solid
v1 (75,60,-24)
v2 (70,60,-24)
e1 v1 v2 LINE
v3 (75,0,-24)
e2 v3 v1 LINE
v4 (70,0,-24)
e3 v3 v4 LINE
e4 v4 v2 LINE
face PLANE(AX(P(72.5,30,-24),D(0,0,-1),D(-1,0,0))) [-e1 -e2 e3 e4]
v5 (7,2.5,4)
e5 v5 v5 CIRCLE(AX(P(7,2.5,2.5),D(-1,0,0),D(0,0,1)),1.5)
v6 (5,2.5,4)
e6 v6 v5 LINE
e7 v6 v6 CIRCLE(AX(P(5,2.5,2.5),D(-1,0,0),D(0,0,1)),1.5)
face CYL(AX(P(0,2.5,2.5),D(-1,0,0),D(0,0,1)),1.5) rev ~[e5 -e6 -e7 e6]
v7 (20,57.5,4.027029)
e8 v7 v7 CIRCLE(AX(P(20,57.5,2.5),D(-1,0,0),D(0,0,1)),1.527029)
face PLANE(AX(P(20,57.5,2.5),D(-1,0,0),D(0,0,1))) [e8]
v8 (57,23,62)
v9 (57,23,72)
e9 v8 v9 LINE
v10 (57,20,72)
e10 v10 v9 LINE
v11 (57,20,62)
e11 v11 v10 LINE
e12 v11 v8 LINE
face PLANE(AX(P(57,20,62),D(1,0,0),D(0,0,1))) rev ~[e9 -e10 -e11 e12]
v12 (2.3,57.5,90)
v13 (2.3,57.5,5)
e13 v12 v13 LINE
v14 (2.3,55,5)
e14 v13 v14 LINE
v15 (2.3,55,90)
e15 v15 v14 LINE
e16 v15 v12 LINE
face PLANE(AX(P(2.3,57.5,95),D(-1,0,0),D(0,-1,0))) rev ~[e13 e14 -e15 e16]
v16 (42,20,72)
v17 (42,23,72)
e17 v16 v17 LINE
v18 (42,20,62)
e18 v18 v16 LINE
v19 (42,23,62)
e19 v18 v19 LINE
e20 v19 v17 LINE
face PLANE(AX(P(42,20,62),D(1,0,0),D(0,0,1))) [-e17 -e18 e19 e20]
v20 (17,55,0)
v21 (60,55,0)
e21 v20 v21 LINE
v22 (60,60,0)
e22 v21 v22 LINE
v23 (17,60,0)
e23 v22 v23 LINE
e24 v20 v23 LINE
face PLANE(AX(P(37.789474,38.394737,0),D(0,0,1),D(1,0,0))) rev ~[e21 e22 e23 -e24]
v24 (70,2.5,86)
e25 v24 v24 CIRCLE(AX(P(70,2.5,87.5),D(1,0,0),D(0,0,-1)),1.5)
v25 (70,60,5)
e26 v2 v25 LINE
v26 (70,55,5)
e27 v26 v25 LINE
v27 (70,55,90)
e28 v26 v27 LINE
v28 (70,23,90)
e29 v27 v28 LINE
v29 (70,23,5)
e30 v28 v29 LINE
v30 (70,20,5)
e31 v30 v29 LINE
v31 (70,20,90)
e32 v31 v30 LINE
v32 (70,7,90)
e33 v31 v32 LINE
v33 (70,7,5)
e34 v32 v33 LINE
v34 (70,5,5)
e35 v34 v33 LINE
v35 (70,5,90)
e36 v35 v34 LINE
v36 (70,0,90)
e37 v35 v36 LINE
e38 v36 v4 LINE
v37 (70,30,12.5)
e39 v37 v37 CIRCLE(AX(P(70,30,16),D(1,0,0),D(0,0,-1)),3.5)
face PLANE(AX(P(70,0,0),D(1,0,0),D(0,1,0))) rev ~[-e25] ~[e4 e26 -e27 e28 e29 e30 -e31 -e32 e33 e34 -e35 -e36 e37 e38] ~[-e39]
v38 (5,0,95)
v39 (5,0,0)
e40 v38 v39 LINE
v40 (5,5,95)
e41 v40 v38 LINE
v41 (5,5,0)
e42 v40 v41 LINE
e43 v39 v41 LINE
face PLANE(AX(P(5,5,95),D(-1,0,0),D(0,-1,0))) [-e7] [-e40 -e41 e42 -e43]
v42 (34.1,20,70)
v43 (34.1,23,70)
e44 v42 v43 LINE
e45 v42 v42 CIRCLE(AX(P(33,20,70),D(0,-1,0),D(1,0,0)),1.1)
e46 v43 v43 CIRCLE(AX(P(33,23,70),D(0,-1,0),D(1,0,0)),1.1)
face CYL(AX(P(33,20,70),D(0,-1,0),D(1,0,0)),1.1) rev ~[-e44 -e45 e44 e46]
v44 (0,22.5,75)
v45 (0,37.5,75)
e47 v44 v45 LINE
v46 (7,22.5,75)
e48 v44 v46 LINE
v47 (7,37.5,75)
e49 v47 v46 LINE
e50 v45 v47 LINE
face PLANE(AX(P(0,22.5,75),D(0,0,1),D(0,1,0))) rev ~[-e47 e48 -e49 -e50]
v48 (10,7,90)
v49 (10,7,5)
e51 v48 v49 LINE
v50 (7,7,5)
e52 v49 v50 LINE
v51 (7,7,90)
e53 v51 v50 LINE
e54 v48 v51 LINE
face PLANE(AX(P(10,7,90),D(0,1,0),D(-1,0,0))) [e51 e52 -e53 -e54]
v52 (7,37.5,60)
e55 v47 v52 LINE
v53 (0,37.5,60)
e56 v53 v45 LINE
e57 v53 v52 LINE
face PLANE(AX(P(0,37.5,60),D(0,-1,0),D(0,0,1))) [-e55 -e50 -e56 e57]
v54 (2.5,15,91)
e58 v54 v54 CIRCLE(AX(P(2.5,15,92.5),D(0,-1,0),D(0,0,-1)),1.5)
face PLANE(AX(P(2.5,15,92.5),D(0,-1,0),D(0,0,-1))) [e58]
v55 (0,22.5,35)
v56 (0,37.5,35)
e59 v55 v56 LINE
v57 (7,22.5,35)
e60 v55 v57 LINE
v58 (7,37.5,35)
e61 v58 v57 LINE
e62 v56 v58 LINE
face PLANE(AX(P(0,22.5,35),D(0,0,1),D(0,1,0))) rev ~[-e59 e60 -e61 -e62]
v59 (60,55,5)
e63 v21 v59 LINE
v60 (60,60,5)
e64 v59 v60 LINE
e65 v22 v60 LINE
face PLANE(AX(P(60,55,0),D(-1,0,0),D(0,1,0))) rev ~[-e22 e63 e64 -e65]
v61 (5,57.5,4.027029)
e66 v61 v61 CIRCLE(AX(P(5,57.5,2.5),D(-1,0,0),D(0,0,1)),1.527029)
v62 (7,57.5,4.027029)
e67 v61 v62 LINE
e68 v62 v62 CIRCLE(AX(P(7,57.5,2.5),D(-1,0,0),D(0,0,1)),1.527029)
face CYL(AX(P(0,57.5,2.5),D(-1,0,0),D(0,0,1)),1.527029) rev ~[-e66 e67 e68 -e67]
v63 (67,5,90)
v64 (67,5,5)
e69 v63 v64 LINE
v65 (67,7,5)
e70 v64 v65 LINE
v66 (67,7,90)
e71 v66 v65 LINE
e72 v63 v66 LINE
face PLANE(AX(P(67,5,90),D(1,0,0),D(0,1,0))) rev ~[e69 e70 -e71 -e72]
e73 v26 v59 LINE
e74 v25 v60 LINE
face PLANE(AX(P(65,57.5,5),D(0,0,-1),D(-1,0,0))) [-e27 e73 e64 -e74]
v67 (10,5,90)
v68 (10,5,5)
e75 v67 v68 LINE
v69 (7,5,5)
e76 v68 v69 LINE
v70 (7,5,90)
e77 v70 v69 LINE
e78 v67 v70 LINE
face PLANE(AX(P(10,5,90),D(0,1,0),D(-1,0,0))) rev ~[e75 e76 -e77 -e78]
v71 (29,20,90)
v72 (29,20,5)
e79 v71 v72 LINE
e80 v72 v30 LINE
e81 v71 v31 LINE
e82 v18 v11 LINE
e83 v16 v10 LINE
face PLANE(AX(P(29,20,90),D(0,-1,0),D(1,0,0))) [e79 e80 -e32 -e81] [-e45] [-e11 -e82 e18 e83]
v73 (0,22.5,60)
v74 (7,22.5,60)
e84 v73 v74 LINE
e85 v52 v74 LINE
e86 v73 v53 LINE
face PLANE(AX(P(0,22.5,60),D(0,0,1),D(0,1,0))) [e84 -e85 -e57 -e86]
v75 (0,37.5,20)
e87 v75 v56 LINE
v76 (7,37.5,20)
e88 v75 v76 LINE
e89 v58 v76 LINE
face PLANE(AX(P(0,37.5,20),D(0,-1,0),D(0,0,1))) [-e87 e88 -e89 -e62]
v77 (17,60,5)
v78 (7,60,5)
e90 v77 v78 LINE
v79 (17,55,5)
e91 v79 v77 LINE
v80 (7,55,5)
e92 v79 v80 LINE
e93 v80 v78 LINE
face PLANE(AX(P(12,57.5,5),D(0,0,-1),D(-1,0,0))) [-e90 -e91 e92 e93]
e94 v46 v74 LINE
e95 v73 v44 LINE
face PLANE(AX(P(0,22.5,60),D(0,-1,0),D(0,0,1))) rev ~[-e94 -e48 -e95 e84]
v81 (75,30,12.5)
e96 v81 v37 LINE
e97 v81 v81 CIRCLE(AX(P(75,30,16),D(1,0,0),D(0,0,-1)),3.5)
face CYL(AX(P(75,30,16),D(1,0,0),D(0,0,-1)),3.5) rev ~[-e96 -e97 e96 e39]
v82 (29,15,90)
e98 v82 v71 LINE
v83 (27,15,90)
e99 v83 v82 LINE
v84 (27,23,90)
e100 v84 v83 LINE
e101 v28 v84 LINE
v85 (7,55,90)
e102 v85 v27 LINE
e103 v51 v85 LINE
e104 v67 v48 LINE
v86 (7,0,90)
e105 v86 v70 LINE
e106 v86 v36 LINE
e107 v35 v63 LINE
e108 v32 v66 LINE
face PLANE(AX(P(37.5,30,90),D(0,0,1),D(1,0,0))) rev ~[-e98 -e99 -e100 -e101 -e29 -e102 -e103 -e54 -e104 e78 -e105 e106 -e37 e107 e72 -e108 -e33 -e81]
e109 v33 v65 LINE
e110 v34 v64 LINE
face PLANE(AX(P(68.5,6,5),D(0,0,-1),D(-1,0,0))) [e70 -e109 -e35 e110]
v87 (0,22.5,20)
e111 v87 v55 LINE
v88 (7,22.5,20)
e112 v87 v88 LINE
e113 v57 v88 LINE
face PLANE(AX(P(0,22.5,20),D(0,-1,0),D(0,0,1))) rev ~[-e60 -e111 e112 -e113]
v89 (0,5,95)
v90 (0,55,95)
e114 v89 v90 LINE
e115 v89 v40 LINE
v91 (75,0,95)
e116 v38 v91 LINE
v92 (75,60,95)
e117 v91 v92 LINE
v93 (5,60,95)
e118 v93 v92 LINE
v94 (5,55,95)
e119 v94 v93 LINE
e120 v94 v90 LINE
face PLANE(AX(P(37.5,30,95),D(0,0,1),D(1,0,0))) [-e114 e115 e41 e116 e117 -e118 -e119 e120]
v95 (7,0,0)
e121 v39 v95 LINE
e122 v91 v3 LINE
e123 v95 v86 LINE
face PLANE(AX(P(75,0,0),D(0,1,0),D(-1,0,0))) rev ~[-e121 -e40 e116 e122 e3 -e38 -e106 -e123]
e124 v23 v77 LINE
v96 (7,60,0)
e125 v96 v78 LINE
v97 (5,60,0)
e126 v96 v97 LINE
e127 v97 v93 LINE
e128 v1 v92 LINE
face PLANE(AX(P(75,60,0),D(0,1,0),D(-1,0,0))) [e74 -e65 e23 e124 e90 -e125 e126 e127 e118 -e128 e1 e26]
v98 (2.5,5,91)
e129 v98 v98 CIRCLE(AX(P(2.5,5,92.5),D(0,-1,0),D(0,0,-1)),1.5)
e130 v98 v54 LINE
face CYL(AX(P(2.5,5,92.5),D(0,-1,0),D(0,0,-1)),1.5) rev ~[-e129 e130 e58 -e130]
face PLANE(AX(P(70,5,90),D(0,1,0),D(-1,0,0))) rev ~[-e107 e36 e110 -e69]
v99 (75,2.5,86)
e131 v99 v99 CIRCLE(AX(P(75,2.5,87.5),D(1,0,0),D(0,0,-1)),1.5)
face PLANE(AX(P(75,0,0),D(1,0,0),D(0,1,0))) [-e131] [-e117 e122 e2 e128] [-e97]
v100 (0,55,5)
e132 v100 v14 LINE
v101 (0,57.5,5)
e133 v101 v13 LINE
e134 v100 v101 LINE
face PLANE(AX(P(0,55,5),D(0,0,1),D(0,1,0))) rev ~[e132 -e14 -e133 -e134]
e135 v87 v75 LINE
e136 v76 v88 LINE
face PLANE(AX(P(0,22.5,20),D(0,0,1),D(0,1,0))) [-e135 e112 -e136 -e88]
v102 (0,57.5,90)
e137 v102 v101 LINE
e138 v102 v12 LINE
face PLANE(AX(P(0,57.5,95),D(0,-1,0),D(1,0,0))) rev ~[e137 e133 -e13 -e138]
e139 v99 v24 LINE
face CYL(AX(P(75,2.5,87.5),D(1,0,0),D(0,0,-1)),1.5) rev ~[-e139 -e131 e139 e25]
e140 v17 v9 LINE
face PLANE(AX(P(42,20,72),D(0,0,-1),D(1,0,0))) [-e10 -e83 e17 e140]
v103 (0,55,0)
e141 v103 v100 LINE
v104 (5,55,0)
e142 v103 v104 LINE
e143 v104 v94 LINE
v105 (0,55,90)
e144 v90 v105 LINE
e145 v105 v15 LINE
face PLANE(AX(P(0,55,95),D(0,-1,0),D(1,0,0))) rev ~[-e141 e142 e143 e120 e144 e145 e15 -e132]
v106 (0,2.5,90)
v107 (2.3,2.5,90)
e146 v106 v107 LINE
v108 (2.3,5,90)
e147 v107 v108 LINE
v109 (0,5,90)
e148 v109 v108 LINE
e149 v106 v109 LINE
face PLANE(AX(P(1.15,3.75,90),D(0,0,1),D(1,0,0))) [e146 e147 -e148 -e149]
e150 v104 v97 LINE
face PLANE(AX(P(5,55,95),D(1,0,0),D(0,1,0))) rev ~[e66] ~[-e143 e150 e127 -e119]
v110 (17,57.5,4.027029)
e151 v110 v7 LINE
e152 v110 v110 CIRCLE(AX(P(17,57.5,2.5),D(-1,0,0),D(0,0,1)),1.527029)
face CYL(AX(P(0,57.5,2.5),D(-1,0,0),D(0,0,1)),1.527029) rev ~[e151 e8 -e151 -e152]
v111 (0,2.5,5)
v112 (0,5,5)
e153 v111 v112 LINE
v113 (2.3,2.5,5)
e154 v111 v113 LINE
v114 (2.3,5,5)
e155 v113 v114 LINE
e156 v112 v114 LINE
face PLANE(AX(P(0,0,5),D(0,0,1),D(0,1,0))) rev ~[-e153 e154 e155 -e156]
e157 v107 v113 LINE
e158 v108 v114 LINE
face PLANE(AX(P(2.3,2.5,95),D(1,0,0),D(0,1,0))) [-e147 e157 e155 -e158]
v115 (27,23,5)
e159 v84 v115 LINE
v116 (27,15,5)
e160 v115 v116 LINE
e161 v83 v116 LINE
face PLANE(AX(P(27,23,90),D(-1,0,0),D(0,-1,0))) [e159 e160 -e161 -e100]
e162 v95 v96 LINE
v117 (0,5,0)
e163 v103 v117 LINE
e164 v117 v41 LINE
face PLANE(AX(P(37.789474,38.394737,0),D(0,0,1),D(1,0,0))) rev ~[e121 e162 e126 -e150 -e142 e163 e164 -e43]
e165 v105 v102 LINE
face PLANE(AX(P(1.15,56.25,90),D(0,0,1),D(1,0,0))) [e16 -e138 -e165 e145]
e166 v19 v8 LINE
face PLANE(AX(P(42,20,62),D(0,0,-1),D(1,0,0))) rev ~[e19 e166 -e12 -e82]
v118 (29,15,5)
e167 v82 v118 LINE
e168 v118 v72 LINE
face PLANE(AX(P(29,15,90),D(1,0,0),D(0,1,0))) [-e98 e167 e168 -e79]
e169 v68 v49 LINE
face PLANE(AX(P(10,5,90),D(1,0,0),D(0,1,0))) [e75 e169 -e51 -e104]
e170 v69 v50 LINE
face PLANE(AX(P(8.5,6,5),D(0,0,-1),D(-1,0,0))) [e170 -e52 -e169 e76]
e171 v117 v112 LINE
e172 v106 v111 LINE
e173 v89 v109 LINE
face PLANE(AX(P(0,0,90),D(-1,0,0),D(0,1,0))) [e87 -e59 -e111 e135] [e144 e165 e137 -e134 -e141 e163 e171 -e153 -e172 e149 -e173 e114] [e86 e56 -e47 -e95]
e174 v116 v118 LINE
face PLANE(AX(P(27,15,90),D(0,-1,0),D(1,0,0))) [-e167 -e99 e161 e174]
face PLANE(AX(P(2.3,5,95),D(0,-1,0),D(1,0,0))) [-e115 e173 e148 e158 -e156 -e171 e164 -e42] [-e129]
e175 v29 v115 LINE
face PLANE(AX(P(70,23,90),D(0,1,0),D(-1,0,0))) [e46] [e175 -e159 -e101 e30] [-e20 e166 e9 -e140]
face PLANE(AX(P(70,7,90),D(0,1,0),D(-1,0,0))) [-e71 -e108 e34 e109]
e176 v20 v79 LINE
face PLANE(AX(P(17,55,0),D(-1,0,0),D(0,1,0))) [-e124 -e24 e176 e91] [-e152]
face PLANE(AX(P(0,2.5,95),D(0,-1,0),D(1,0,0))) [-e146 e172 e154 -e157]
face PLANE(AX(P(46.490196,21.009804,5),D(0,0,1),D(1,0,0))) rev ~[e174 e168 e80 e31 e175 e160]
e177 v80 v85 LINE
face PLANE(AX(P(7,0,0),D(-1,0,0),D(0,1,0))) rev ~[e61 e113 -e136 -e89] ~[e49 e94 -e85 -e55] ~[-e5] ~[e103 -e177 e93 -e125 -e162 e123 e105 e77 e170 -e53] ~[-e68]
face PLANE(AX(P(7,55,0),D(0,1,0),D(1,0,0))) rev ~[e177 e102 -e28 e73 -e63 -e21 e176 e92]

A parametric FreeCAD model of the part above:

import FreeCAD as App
import Part
import Sketcher
Q = App.Units.Quantity

doc = App.newDocument("Part")
body = doc.addObject("PartDesign::Body", "Body")

sketch1 = body.newObject("Sketcher::SketchObject", "Sketch")
sketch1.AttachmentSupport = (doc.getObject("XY_Plane"), [""])
sketch1.MapMode = "FlatFace"
sketch1.addGeometry([
    Part.LineSegment(App.Vector(0, 60, 0), App.Vector(0, 0, 0)),
    Part.LineSegment(App.Vector(0, 0, 0), App.Vector(7, 0, 0)),
    Part.LineSegment(App.Vector(7, 0, 0), App.Vector(7, 55, 0)),
    Part.LineSegment(App.Vector(7, 55, 0), App.Vector(70, 55, 0)),
    Part.LineSegment(App.Vector(70, 55, 0), App.Vector(70, 0, 0)),
    Part.LineSegment(App.Vector(70, 0, 0), App.Vector(75, 0, 0)),
    Part.LineSegment(App.Vector(75, 0, 0), App.Vector(75, 60, 0)),
    Part.LineSegment(App.Vector(75, 60, 0), App.Vector(0, 60, 0)),
], False)
sketch1.addConstraint([
    Sketcher.Constraint("Coincident", 0, 2, 1, 1),
    Sketcher.Constraint("Coincident", 1, 2, 2, 1),
    Sketcher.Constraint("Coincident", 2, 2, 3, 1),
    Sketcher.Constraint("Coincident", 3, 2, 4, 1),
    Sketcher.Constraint("Coincident", 4, 2, 5, 1),
    Sketcher.Constraint("Coincident", 5, 2, 6, 1),
    Sketcher.Constraint("Coincident", 6, 2, 7, 1),
    Sketcher.Constraint("Coincident", 7, 2, 0, 1),
    Sketcher.Constraint("Vertical", 0),
    Sketcher.Constraint("Horizontal", 1),
    Sketcher.Constraint("Vertical", 2),
    Sketcher.Constraint("Horizontal", 3),
    Sketcher.Constraint("Vertical", 4),
    Sketcher.Constraint("Horizontal", 5),
    Sketcher.Constraint("Vertical", 6),
    Sketcher.Constraint("Horizontal", 7),
    Sketcher.Constraint("Coincident", 0, 2, -1, 1),
    Sketcher.Constraint("PointOnObject", 4, 2, -1),
    Sketcher.Constraint("DistanceX", 1, 1, 1, 2, Q("7 mm")),
    Sketcher.Constraint("DistanceX", 3, 1, 3, 2, Q("63 mm")),
    Sketcher.Constraint("DistanceX", 5, 1, 5, 2, Q("5 mm")),
    Sketcher.Constraint("DistanceY", 0, 2, 0, 1, Q("60 mm")),
    Sketcher.Constraint("DistanceY", 2, 1, 2, 2, Q("55 mm")),
])
pad1 = body.newObject("PartDesign::Pad", "Pad")
pad1.Profile = sketch1
pad1.Length = 90

sketch2 = body.newObject("Sketcher::SketchObject", "Sketch001")
sketch2.AttachmentSupport = (doc.getObject("XY_Plane"), [""])
sketch2.MapMode = "FlatFace"
sketch2.AttachmentOffset = App.Placement(App.Vector(0, 0, 90), App.Rotation())
sketch2.addGeometry([
    Part.LineSegment(App.Vector(0, 60, 0), App.Vector(0, 0, 0)),
    Part.LineSegment(App.Vector(0, 0, 0), App.Vector(75, 0, 0)),
    Part.LineSegment(App.Vector(75, 0, 0), App.Vector(75, 60, 0)),
    Part.LineSegment(App.Vector(75, 60, 0), App.Vector(0, 60, 0)),
], False)
sketch2.addConstraint([
    Sketcher.Constraint("Coincident", 0, 2, 1, 1),
    Sketcher.Constraint("Coincident", 1, 2, 2, 1),
    Sketcher.Constraint("Coincident", 2, 2, 3, 1),
    Sketcher.Constraint("Coincident", 3, 2, 0, 1),
    Sketcher.Constraint("Vertical", 0),
    Sketcher.Constraint("Horizontal", 1),
    Sketcher.Constraint("Vertical", 2),
    Sketcher.Constraint("Horizontal", 3),
    Sketcher.Constraint("Coincident", 0, 2, -1, 1),
    Sketcher.Constraint("DistanceX", 1, 1, 1, 2, Q("75 mm")),
    Sketcher.Constraint("DistanceY", 0, 2, 0, 1, Q("60 mm")),
])
pad2 = body.newObject("PartDesign::Pad", "Pad001")
pad2.Profile = sketch2
pad2.Length = 5

sketch3 = body.newObject("Sketcher::SketchObject", "Sketch002")
sketch3.AttachmentSupport = (doc.getObject("XY_Plane"), [""])
sketch3.MapMode = "FlatFace"
sketch3.addGeometry([
    Part.LineSegment(App.Vector(75, 60, 0), App.Vector(75, 0, 0)),
    Part.LineSegment(App.Vector(75, 0, 0), App.Vector(70, 0, 0)),
    Part.LineSegment(App.Vector(70, 0, 0), App.Vector(70, 60, 0)),
    Part.LineSegment(App.Vector(70, 60, 0), App.Vector(75, 60, 0)),
], False)
sketch3.addConstraint([
    Sketcher.Constraint("Coincident", 0, 2, 1, 1),
    Sketcher.Constraint("Coincident", 1, 2, 2, 1),
    Sketcher.Constraint("Coincident", 2, 2, 3, 1),
    Sketcher.Constraint("Coincident", 3, 2, 0, 1),
    Sketcher.Constraint("Vertical", 0),
    Sketcher.Constraint("Horizontal", 1),
    Sketcher.Constraint("Vertical", 2),
    Sketcher.Constraint("Horizontal", 3),
    Sketcher.Constraint("PointOnObject", 0, 2, -1),
    Sketcher.Constraint("DistanceX", 1, 2, 1, 1, Q("5 mm")),
    Sketcher.Constraint("DistanceY", 0, 2, 0, 1, Q("60 mm")),
    Sketcher.Constraint("DistanceX", -1, 1, 0, 2, Q("75 mm")),
])
pad3 = body.newObject("PartDesign::Pad", "Pad002")
pad3.Profile = sketch3
pad3.Length = 24
pad3.Reversed = True

sketch4 = body.newObject("Sketcher::SketchObject", "Sketch003")
sketch4.AttachmentSupport = (doc.getObject("YZ_Plane"), [""])
sketch4.MapMode = "FlatFace"
sketch4.AttachmentOffset = App.Placement(App.Vector(0, 0, 75), App.Rotation())
sketch4.addGeometry(Part.Circle(App.Vector(30, 16, 0), App.Vector(0, 0, 1), 3.5), False)
sketch4.addConstraint([
    Sketcher.Constraint("Diameter", 0, Q("7 mm")),
    Sketcher.Constraint("DistanceX", -1, 1, 0, 3, Q("30 mm")),
    Sketcher.Constraint("DistanceY", -1, 1, 0, 3, Q("16 mm")),
])
pocket1 = body.newObject("PartDesign::Pocket", "Pocket")
pocket1.Profile = sketch4
pocket1.Type = "UpToFirst"

sketch5 = body.newObject("Sketcher::SketchObject", "Sketch004")
sketch5.AttachmentSupport = (doc.getObject("YZ_Plane"), [""])
sketch5.MapMode = "FlatFace"
sketch5.AttachmentOffset = App.Placement(App.Vector(0, 0, 75), App.Rotation())
sketch5.addGeometry(Part.Circle(App.Vector(2.5, 87.5, 0), App.Vector(0, 0, 1), 1.5), False)
sketch5.addConstraint([
    Sketcher.Constraint("Diameter", 0, Q("3 mm")),
    Sketcher.Constraint("DistanceX", -1, 1, 0, 3, Q("2.5 mm")),
    Sketcher.Constraint("DistanceY", -1, 1, 0, 3, Q("87.5 mm")),
])
pocket2 = body.newObject("PartDesign::Pocket", "Pocket001")
pocket2.Profile = sketch5
pocket2.Type = "UpToFirst"

sketch6 = body.newObject("Sketcher::SketchObject", "Sketch005")
sketch6.AttachmentSupport = (doc.getObject("XY_Plane"), [""])
sketch6.MapMode = "FlatFace"
sketch6.AttachmentOffset = App.Placement(App.Vector(0, 0, 90), App.Rotation())
sketch6.addGeometry([
    Part.LineSegment(App.Vector(70, 23, 0), App.Vector(70, 20, 0)),
    Part.LineSegment(App.Vector(70, 20, 0), App.Vector(29, 20, 0)),
    Part.LineSegment(App.Vector(29, 20, 0), App.Vector(29, 15, 0)),
    Part.LineSegment(App.Vector(29, 15, 0), App.Vector(27, 15, 0)),
    Part.LineSegment(App.Vector(27, 15, 0), App.Vector(27, 23, 0)),
    Part.LineSegment(App.Vector(27, 23, 0), App.Vector(70, 23, 0)),
    Part.LineSegment(App.Vector(70, 7, 0), App.Vector(70, 5, 0)),
    Part.LineSegment(App.Vector(70, 5, 0), App.Vector(67, 5, 0)),
    Part.LineSegment(App.Vector(67, 5, 0), App.Vector(67, 7, 0)),
    Part.LineSegment(App.Vector(67, 7, 0), App.Vector(70, 7, 0)),
    Part.LineSegment(App.Vector(10, 7, 0), App.Vector(10, 5, 0)),
    Part.LineSegment(App.Vector(10, 5, 0), App.Vector(7, 5, 0)),
    Part.LineSegment(App.Vector(7, 5, 0), App.Vector(7, 7, 0)),
    Part.LineSegment(App.Vector(7, 7, 0), App.Vector(10, 7, 0)),
], False)
sketch6.addConstraint([
    Sketcher.Constraint("Coincident", 0, 2, 1, 1),
    Sketcher.Constraint("Coincident", 1, 2, 2, 1),
    Sketcher.Constraint("Coincident", 2, 2, 3, 1),
    Sketcher.Constraint("Coincident", 3, 2, 4, 1),
    Sketcher.Constraint("Coincident", 4, 2, 5, 1),
    Sketcher.Constraint("Coincident", 5, 2, 0, 1),
    Sketcher.Constraint("Coincident", 6, 2, 7, 1),
    Sketcher.Constraint("Coincident", 7, 2, 8, 1),
    Sketcher.Constraint("Coincident", 8, 2, 9, 1),
    Sketcher.Constraint("Coincident", 9, 2, 6, 1),
    Sketcher.Constraint("Coincident", 10, 2, 11, 1),
    Sketcher.Constraint("Coincident", 11, 2, 12, 1),
    Sketcher.Constraint("Coincident", 12, 2, 13, 1),
    Sketcher.Constraint("Coincident", 13, 2, 10, 1),
    Sketcher.Constraint("Vertical", 0),
    Sketcher.Constraint("Horizontal", 1),
    Sketcher.Constraint("Vertical", 2),
    Sketcher.Constraint("Horizontal", 3),
    Sketcher.Constraint("Vertical", 4),
    Sketcher.Constraint("Horizontal", 5),
    Sketcher.Constraint("Vertical", 6),
    Sketcher.Constraint("Horizontal", 7),
    Sketcher.Constraint("Vertical", 8),
    Sketcher.Constraint("Horizontal", 9),
    Sketcher.Constraint("Vertical", 10),
    Sketcher.Constraint("Horizontal", 11),
    Sketcher.Constraint("Vertical", 12),
    Sketcher.Constraint("Horizontal", 13),
    Sketcher.Constraint("Horizontal", 7, 2, 10, 2),
    Sketcher.Constraint("Horizontal", 9, 2, 12, 2),
    Sketcher.Constraint("Vertical", 5, 2, 6, 2),
    Sketcher.Constraint("Equal", 9, 11),
    Sketcher.Constraint("Equal", 13, 0),
    Sketcher.Constraint("Equal", 3, 6),
    Sketcher.Constraint("DistanceX", 1, 2, 1, 1, Q("41 mm")),
    Sketcher.Constraint("DistanceX", 3, 2, 3, 1, Q("2 mm")),
    Sketcher.Constraint("DistanceX", 7, 2, 7, 1, Q("3 mm")),
    Sketcher.Constraint("DistanceY", 2, 2, 2, 1, Q("5 mm")),
    Sketcher.Constraint("DistanceX", -1, 1, 0, 2, Q("70 mm")),
    Sketcher.Constraint("DistanceY", -1, 1, 0, 2, Q("20 mm")),
    Sketcher.Constraint("DistanceY", -1, 1, 6, 2, Q("5 mm")),
    Sketcher.Constraint("DistanceX", -1, 1, 10, 2, Q("10 mm")),
])
pad4 = body.newObject("PartDesign::Pad", "Pad003")
pad4.Profile = sketch6
pad4.Length = 85
pad4.Reversed = True

sketch7 = body.newObject("Sketcher::SketchObject", "Sketch006")
sketch7.AttachmentSupport = (doc.getObject("YZ_Plane"), [""])
sketch7.MapMode = "FlatFace"
sketch7.addGeometry([
    Part.Circle(App.Vector(2.5, 2.5, 0), App.Vector(0, 0, 1), 1.5),
    Part.Circle(App.Vector(57.5, 2.5, 0), App.Vector(0, 0, 1), 1.5),
], False)
sketch7.addConstraint([
    Sketcher.Constraint("Horizontal", 0, 3, 1, 3),
    Sketcher.Constraint("Diameter", 0, Q("3 mm")),
    Sketcher.Constraint("DistanceX", 0, 3, 1, 3, Q("55 mm")),
    Sketcher.Constraint("DistanceX", -1, 1, 0, 3, Q("2.5 mm")),
    Sketcher.Constraint("DistanceY", -1, 1, 0, 3, Q("2.5 mm")),
    Sketcher.Constraint("Diameter", 1, Q("3.054057 mm")),
])
pocket3 = body.newObject("PartDesign::Pocket", "Pocket002")
pocket3.Profile = sketch7
pocket3.Length = 20
pocket3.Reversed = True

sketch8 = body.newObject("Sketcher::SketchObject", "Sketch007")
sketch8.AttachmentSupport = (doc.getObject("XY_Plane"), [""])
sketch8.MapMode = "FlatFace"
sketch8.addGeometry([
    Part.LineSegment(App.Vector(70, 60, 0), App.Vector(70, 55, 0)),
    Part.LineSegment(App.Vector(70, 55, 0), App.Vector(60, 55, 0)),
    Part.LineSegment(App.Vector(60, 55, 0), App.Vector(60, 60, 0)),
    Part.LineSegment(App.Vector(60, 60, 0), App.Vector(70, 60, 0)),
    Part.LineSegment(App.Vector(17, 60, 0), App.Vector(17, 55, 0)),
    Part.LineSegment(App.Vector(17, 55, 0), App.Vector(7, 55, 0)),
    Part.LineSegment(App.Vector(7, 55, 0), App.Vector(7, 60, 0)),
    Part.LineSegment(App.Vector(7, 60, 0), App.Vector(17, 60, 0)),
], False)
sketch8.addConstraint([
    Sketcher.Constraint("Coincident", 0, 2, 1, 1),
    Sketcher.Constraint("Coincident", 1, 2, 2, 1),
    Sketcher.Constraint("Coincident", 2, 2, 3, 1),
    Sketcher.Constraint("Coincident", 3, 2, 0, 1),
    Sketcher.Constraint("Coincident", 4, 2, 5, 1),
    Sketcher.Constraint("Coincident", 5, 2, 6, 1),
    Sketcher.Constraint("Coincident", 6, 2, 7, 1),
    Sketcher.Constraint("Coincident", 7, 2, 4, 1),
    Sketcher.Constraint("Vertical", 0),
    Sketcher.Constraint("Horizontal", 1),
    Sketcher.Constraint("Vertical", 2),
    Sketcher.Constraint("Horizontal", 3),
    Sketcher.Constraint("Vertical", 4),
    Sketcher.Constraint("Horizontal", 5),
    Sketcher.Constraint("Vertical", 6),
    Sketcher.Constraint("Horizontal", 7),
    Sketcher.Constraint("Horizontal", 1, 2, 4, 2),
    Sketcher.Constraint("Horizontal", 3, 2, 6, 2),
    Sketcher.Constraint("Equal", 3, 5),
    Sketcher.Constraint("DistanceX", 1, 2, 1, 1, Q("10 mm")),
    Sketcher.Constraint("DistanceY", 0, 2, 0, 1, Q("5 mm")),
    Sketcher.Constraint("DistanceX", -1, 1, 0, 2, Q("70 mm")),
    Sketcher.Constraint("DistanceY", -1, 1, 0, 2, Q("55 mm")),
    Sketcher.Constraint("DistanceX", -1, 1, 4, 2, Q("17 mm")),
])
pocket4 = body.newObject("PartDesign::Pocket", "Pocket003")
pocket4.Profile = sketch8
pocket4.Length = 5
pocket4.Reversed = True

sketch9 = body.newObject("Sketcher::SketchObject", "Sketch008")
sketch9.AttachmentSupport = (doc.getObject("XZ_Plane"), [""])
sketch9.MapMode = "FlatFace"
sketch9.AttachmentOffset = App.Placement(App.Vector(0, 0, -20), App.Rotation())
sketch9.addGeometry(Part.Circle(App.Vector(33, 70, 0), App.Vector(0, 0, 1), 1.1), False)
sketch9.addConstraint([
    Sketcher.Constraint("Diameter", 0, Q("2.2 mm")),
    Sketcher.Constraint("DistanceX", -1, 1, 0, 3, Q("33 mm")),
    Sketcher.Constraint("DistanceY", -1, 1, 0, 3, Q("70 mm")),
])
pocket5 = body.newObject("PartDesign::Pocket", "Pocket004")
pocket5.Profile = sketch9
pocket5.Type = "UpToFirst"

sketch10 = body.newObject("Sketcher::SketchObject", "Sketch009")
sketch10.AttachmentSupport = (doc.getObject("XY_Plane"), [""])
sketch10.MapMode = "FlatFace"
sketch10.AttachmentOffset = App.Placement(App.Vector(0, 0, 95), App.Rotation())
sketch10.addGeometry([
    Part.LineSegment(App.Vector(2.3, 2.5, 0), App.Vector(0, 2.5, 0)),
    Part.LineSegment(App.Vector(0, 2.5, 0), App.Vector(0, 0, 0)),
    Part.LineSegment(App.Vector(0, 0, 0), App.Vector(5, 0, 0)),
    Part.LineSegment(App.Vector(5, 0, 0), App.Vector(5, 5, 0)),
    Part.LineSegment(App.Vector(5, 5, 0), App.Vector(2.3, 5, 0)),
    Part.LineSegment(App.Vector(2.3, 5, 0), App.Vector(2.3, 2.5, 0)),
    Part.LineSegment(App.Vector(0, 60, 0), App.Vector(0, 57.5, 0)),
    Part.LineSegment(App.Vector(0, 57.5, 0), App.Vector(2.3, 57.5, 0)),
    Part.LineSegment(App.Vector(2.3, 57.5, 0), App.Vector(2.3, 55, 0)),
    Part.LineSegment(App.Vector(2.3, 55, 0), App.Vector(5, 55, 0)),
    Part.LineSegment(App.Vector(5, 55, 0), App.Vector(5, 60, 0)),
    Part.LineSegment(App.Vector(5, 60, 0), App.Vector(0, 60, 0)),
], False)
sketch10.addConstraint([
    Sketcher.Constraint("Coincident", 0, 2, 1, 1),
    Sketcher.Constraint("Coincident", 1, 2, 2, 1),
    Sketcher.Constraint("Coincident", 2, 2, 3, 1),
    Sketcher.Constraint("Coincident", 3, 2, 4, 1),
    Sketcher.Constraint("Coincident", 4, 2, 5, 1),
    Sketcher.Constraint("Coincident", 5, 2, 0, 1),
    Sketcher.Constraint("Coincident", 6, 2, 7, 1),
    Sketcher.Constraint("Coincident", 7, 2, 8, 1),
    Sketcher.Constraint("Coincident", 8, 2, 9, 1),
    Sketcher.Constraint("Coincident", 9, 2, 10, 1),
    Sketcher.Constraint("Coincident", 10, 2, 11, 1),
    Sketcher.Constraint("Coincident", 11, 2, 6, 1),
    Sketcher.Constraint("Horizontal", 0),
    Sketcher.Constraint("Vertical", 1),
    Sketcher.Constraint("Horizontal", 2),
    Sketcher.Constraint("Vertical", 3),
    Sketcher.Constraint("Horizontal", 4),
    Sketcher.Constraint("Vertical", 5),
    Sketcher.Constraint("Vertical", 6),
    Sketcher.Constraint("Horizontal", 7),
    Sketcher.Constraint("Vertical", 8),
    Sketcher.Constraint("Horizontal", 9),
    Sketcher.Constraint("Vertical", 10),
    Sketcher.Constraint("Horizontal", 11),
    Sketcher.Constraint("Coincident", 1, 2, -1, 1),
    Sketcher.Constraint("PointOnObject", 6, 2, -2),
    Sketcher.Constraint("Vertical", 5, 2, 7, 2),
    Sketcher.Constraint("Vertical", 3, 2, 9, 2),
    Sketcher.Constraint("Equal", 11, 3),
    Sketcher.Constraint("Equal", 1, 5),
    Sketcher.Constraint("Equal", 5, 6),
    Sketcher.Constraint("Equal", 6, 8),
    Sketcher.Constraint("DistanceX", 2, 1, 2, 2, Q("5 mm")),
    Sketcher.Constraint("DistanceX", 0, 2, 0, 1, Q("2.3 mm")),
    Sketcher.Constraint("DistanceY", -1, 1, 8, 2, Q("55 mm")),
])
pocket6 = body.newObject("PartDesign::Pocket", "Pocket005")
pocket6.Profile = sketch10
pocket6.Length = 90

sketch11 = body.newObject("Sketcher::SketchObject", "Sketch010")
sketch11.AttachmentSupport = (doc.getObject("YZ_Plane"), [""])
sketch11.MapMode = "FlatFace"
sketch11.addGeometry([
    Part.LineSegment(App.Vector(5, 0, 0), App.Vector(0, 0, 0)),
    Part.LineSegment(App.Vector(0, 0, 0), App.Vector(0, 5, 0)),
    Part.LineSegment(App.Vector(0, 5, 0), App.Vector(5, 5, 0)),
    Part.LineSegment(App.Vector(5, 5, 0), App.Vector(5, 0, 0)),
    Part.LineSegment(App.Vector(60, 0, 0), App.Vector(55, 0, 0)),
    Part.LineSegment(App.Vector(55, 0, 0), App.Vector(55, 5, 0)),
    Part.LineSegment(App.Vector(55, 5, 0), App.Vector(60, 5, 0)),
    Part.LineSegment(App.Vector(60, 5, 0), App.Vector(60, 0, 0)),
], False)
sketch11.addConstraint([
    Sketcher.Constraint("Coincident", 0, 2, 1, 1),
    Sketcher.Constraint("Coincident", 1, 2, 2, 1),
    Sketcher.Constraint("Coincident", 2, 2, 3, 1),
    Sketcher.Constraint("Coincident", 3, 2, 0, 1),
    Sketcher.Constraint("Coincident", 4, 2, 5, 1),
    Sketcher.Constraint("Coincident", 5, 2, 6, 1),
    Sketcher.Constraint("Coincident", 6, 2, 7, 1),
    Sketcher.Constraint("Coincident", 7, 2, 4, 1),
    Sketcher.Constraint("Horizontal", 0),
    Sketcher.Constraint("Vertical", 1),
    Sketcher.Constraint("Horizontal", 2),
    Sketcher.Constraint("Vertical", 3),
    Sketcher.Constraint("Horizontal", 4),
    Sketcher.Constraint("Vertical", 5),
    Sketcher.Constraint("Horizontal", 6),
    Sketcher.Constraint("Vertical", 7),
    Sketcher.Constraint("Coincident", 0, 2, -1, 1),
    Sketcher.Constraint("PointOnObject", 4, 2, -1),
    Sketcher.Constraint("Horizontal", 2, 2, 5, 2),
    Sketcher.Constraint("Equal", 2, 4),
    Sketcher.Constraint("Equal", 6, 1),
    Sketcher.Constraint("DistanceX", 0, 2, 0, 1, Q("5 mm")),
    Sketcher.Constraint("DistanceX", -1, 1, 4, 2, Q("55 mm")),
])
pocket7 = body.newObject("PartDesign::Pocket", "Pocket006")
pocket7.Profile = sketch11
pocket7.Length = 5
pocket7.Reversed = True

sketch12 = body.newObject("Sketcher::SketchObject", "Sketch011")
sketch12.AttachmentSupport = (doc.getObject("XY_Plane"), [""])
sketch12.MapMode = "FlatFace"
sketch12.AttachmentOffset = App.Placement(App.Vector(0, 0, 95), App.Rotation())
sketch12.addGeometry([
    Part.LineSegment(App.Vector(0, 5, 0), App.Vector(0, 2.5, 0)),
    Part.LineSegment(App.Vector(0, 2.5, 0), App.Vector(2.3, 2.5, 0)),
    Part.LineSegment(App.Vector(2.3, 2.5, 0), App.Vector(2.3, 5, 0)),
    Part.LineSegment(App.Vector(2.3, 5, 0), App.Vector(0, 5, 0)),
    Part.LineSegment(App.Vector(0, 57.5, 0), App.Vector(0, 55, 0)),
    Part.LineSegment(App.Vector(0, 55, 0), App.Vector(2.3, 55, 0)),
    Part.LineSegment(App.Vector(2.3, 55, 0), App.Vector(2.3, 57.5, 0)),
    Part.LineSegment(App.Vector(2.3, 57.5, 0), App.Vector(0, 57.5, 0)),
], False)
sketch12.addConstraint([
    Sketcher.Constraint("Coincident", 0, 2, 1, 1),
    Sketcher.Constraint("Coincident", 1, 2, 2, 1),
    Sketcher.Constraint("Coincident", 2, 2, 3, 1),
    Sketcher.Constraint("Coincident", 3, 2, 0, 1),
    Sketcher.Constraint("Coincident", 4, 2, 5, 1),
    Sketcher.Constraint("Coincident", 5, 2, 6, 1),
    Sketcher.Constraint("Coincident", 6, 2, 7, 1),
    Sketcher.Constraint("Coincident", 7, 2, 4, 1),
    Sketcher.Constraint("Vertical", 0),
    Sketcher.Constraint("Horizontal", 1),
    Sketcher.Constraint("Vertical", 2),
    Sketcher.Constraint("Horizontal", 3),
    Sketcher.Constraint("Vertical", 4),
    Sketcher.Constraint("Horizontal", 5),
    Sketcher.Constraint("Vertical", 6),
    Sketcher.Constraint("Horizontal", 7),
    Sketcher.Constraint("PointOnObject", 0, 2, -2),
    Sketcher.Constraint("PointOnObject", 4, 2, -2),
    Sketcher.Constraint("Vertical", 2, 2, 5, 2),
    Sketcher.Constraint("Equal", 2, 4),
    Sketcher.Constraint("DistanceX", 1, 1, 1, 2, Q("2.3 mm")),
    Sketcher.Constraint("DistanceY", 0, 2, 0, 1, Q("2.5 mm")),
    Sketcher.Constraint("DistanceY", -1, 1, 2, 2, Q("5 mm")),
    Sketcher.Constraint("DistanceY", -1, 1, 4, 2, Q("55 mm")),
])
pocket8 = body.newObject("PartDesign::Pocket", "Pocket007")
pocket8.Profile = sketch12
pocket8.Length = 5

sketch13 = body.newObject("Sketcher::SketchObject", "Sketch012")
sketch13.AttachmentSupport = (doc.getObject("YZ_Plane"), [""])
sketch13.MapMode = "FlatFace"
sketch13.addGeometry([
    Part.LineSegment(App.Vector(38, 20, 0), App.Vector(22, 20, 0)),
    Part.LineSegment(App.Vector(22, 20, 0), App.Vector(22, 35, 0)),
    Part.LineSegment(App.Vector(22, 35, 0), App.Vector(38, 35, 0)),
    Part.LineSegment(App.Vector(38, 35, 0), App.Vector(38, 20, 0)),
], False)
sketch13.addConstraint([
    Sketcher.Constraint("Coincident", 0, 2, 1, 1),
    Sketcher.Constraint("Coincident", 1, 2, 2, 1),
    Sketcher.Constraint("Coincident", 2, 2, 3, 1),
    Sketcher.Constraint("Coincident", 3, 2, 0, 1),
    Sketcher.Constraint("Horizontal", 0),
    Sketcher.Constraint("Vertical", 1),
    Sketcher.Constraint("Horizontal", 2),
    Sketcher.Constraint("Vertical", 3),
    Sketcher.Constraint("Equal", 2, 1),
    Sketcher.Constraint("DistanceX", 0, 2, 0, 1, Q("15 mm")),
    Sketcher.Constraint("DistanceY", -1, 1, 0, 2, Q("20 mm")),
    Sketcher.Constraint("DistanceX", -1, 1, 0, 2, Q("22.5 mm")),
])
pocket9 = body.newObject("PartDesign::Pocket", "Pocket008")
pocket9.Profile = sketch13
pocket9.Type = "UpToFirst"
pocket9.Reversed = True

sketch14 = body.newObject("Sketcher::SketchObject", "Sketch013")
sketch14.AttachmentSupport = (doc.getObject("YZ_Plane"), [""])
sketch14.MapMode = "FlatFace"
sketch14.addGeometry([
    Part.LineSegment(App.Vector(38, 60, 0), App.Vector(22, 60, 0)),
    Part.LineSegment(App.Vector(22, 60, 0), App.Vector(22, 75, 0)),
    Part.LineSegment(App.Vector(22, 75, 0), App.Vector(38, 75, 0)),
    Part.LineSegment(App.Vector(38, 75, 0), App.Vector(38, 60, 0)),
], False)
sketch14.addConstraint([
    Sketcher.Constraint("Coincident", 0, 2, 1, 1),
    Sketcher.Constraint("Coincident", 1, 2, 2, 1),
    Sketcher.Constraint("Coincident", 2, 2, 3, 1),
    Sketcher.Constraint("Coincident", 3, 2, 0, 1),
    Sketcher.Constraint("Horizontal", 0),
    Sketcher.Constraint("Vertical", 1),
    Sketcher.Constraint("Horizontal", 2),
    Sketcher.Constraint("Vertical", 3),
    Sketcher.Constraint("Equal", 2, 1),
    Sketcher.Constraint("DistanceX", 0, 2, 0, 1, Q("15 mm")),
    Sketcher.Constraint("DistanceY", -1, 1, 0, 2, Q("60 mm")),
    Sketcher.Constraint("DistanceX", -1, 1, 0, 2, Q("22.5 mm")),
])
pocket10 = body.newObject("PartDesign::Pocket", "Pocket009")
pocket10.Profile = sketch14
pocket10.Type = "UpToFirst"
pocket10.Reversed = True

sketch15 = body.newObject("Sketcher::SketchObject", "Sketch014")
sketch15.AttachmentSupport = (doc.getObject("XZ_Plane"), [""])
sketch15.MapMode = "FlatFace"
sketch15.AttachmentOffset = App.Placement(App.Vector(0, 0, -20), App.Rotation())
sketch15.addGeometry([
    Part.LineSegment(App.Vector(42, 72, 0), App.Vector(42, 62, 0)),
    Part.LineSegment(App.Vector(42, 62, 0), App.Vector(57, 62, 0)),
    Part.LineSegment(App.Vector(57, 62, 0), App.Vector(57, 72, 0)),
    Part.LineSegment(App.Vector(57, 72, 0), App.Vector(42, 72, 0)),
], False)
sketch15.addConstraint([
    Sketcher.Constraint("Coincident", 0, 2, 1, 1),
    Sketcher.Constraint("Coincident", 1, 2, 2, 1),
    Sketcher.Constraint("Coincident", 2, 2, 3, 1),
    Sketcher.Constraint("Coincident", 3, 2, 0, 1),
    Sketcher.Constraint("Vertical", 0),
    Sketcher.Constraint("Horizontal", 1),
    Sketcher.Constraint("Vertical", 2),
    Sketcher.Constraint("Horizontal", 3),
    Sketcher.Constraint("DistanceX", 1, 1, 1, 2, Q("15 mm")),
    Sketcher.Constraint("DistanceY", 0, 2, 0, 1, Q("10 mm")),
    Sketcher.Constraint("DistanceX", -1, 1, 0, 2, Q("42 mm")),
    Sketcher.Constraint("DistanceY", -1, 1, 0, 2, Q("62 mm")),
])
pocket11 = body.newObject("PartDesign::Pocket", "Pocket010")
pocket11.Profile = sketch15
pocket11.Type = "UpToFirst"

sketch16 = body.newObject("Sketcher::SketchObject", "Sketch015")
sketch16.AttachmentSupport = (doc.getObject("XZ_Plane"), [""])
sketch16.MapMode = "FlatFace"
sketch16.AttachmentOffset = App.Placement(App.Vector(0, 0, -5), App.Rotation())
sketch16.addGeometry(Part.Circle(App.Vector(2.5, 92.5, 0), App.Vector(0, 0, 1), 1.5), False)
sketch16.addConstraint([
    Sketcher.Constraint("Diameter", 0, Q("3 mm")),
    Sketcher.Constraint("DistanceX", -1, 1, 0, 3, Q("2.5 mm")),
    Sketcher.Constraint("DistanceY", -1, 1, 0, 3, Q("92.5 mm")),
])
pocket12 = body.newObject("PartDesign::Pocket", "Pocket011")
pocket12.Profile = sketch16
pocket12.Length = 10

doc.recompute()
